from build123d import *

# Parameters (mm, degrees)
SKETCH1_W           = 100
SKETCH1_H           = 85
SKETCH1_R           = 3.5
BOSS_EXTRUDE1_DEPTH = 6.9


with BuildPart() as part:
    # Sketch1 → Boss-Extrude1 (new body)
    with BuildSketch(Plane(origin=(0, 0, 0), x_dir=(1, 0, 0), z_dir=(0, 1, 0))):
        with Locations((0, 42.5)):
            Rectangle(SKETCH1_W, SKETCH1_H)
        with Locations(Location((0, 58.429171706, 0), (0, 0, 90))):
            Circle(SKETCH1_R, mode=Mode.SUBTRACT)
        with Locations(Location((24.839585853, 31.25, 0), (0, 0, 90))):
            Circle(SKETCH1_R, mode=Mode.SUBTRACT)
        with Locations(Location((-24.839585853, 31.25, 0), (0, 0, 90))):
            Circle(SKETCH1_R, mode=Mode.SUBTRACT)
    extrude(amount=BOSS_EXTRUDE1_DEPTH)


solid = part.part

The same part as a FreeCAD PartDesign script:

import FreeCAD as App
import Part
import Sketcher
from FreeCAD import Vector


def add_polygon(sketch, points):
    """Adds a closed chain of lines whose ends are joined by coincident constraints."""
    first, n = sketch.GeometryCount, len(points)
    for a, b in zip(points, points[1:] + points[:1]):
        sketch.addGeometry(Part.LineSegment(App.Vector(*a, 0), App.Vector(*b, 0)), False)
    for i in range(n):
        sketch.addConstraint(Sketcher.Constraint("Coincident", first + i, 2, first + (i + 1) % n, 1))

doc = App.newDocument("Part")
body = doc.addObject("PartDesign::Body", "Body")

sketch1 = body.newObject("Sketcher::SketchObject", "Sketch")
sketch1.AttachmentSupport = (doc.getObject("XZ_Plane"), [""])
sketch1.MapMode = "FlatFace"
add_polygon(sketch1, [(-50, -85), (-50, 0), (50, 0), (50, -85)])
sketch1.addGeometry(Part.Circle(Vector(-24.839586, -31.25, 0), Vector(0, 0, 1), 3.5), False)
sketch1.addGeometry(Part.Circle(Vector(24.839586, -31.25, 0), Vector(0, 0, 1), 3.5), False)
sketch1.addGeometry(Part.Circle(Vector(0, -58.429172, 0), Vector(0, 0, 1), 3.5), False)
sketch1.addConstraint(Sketcher.Constraint("Vertical", 0))
sketch1.addConstraint(Sketcher.Constraint("Horizontal", 1))
sketch1.addConstraint(Sketcher.Constraint("Vertical", 2))
sketch1.addConstraint(Sketcher.Constraint("Horizontal", 3))
sketch1.addConstraint(Sketcher.Constraint("Equal", 4, 5))
sketch1.addConstraint(Sketcher.Constraint("Equal", 5, 6))
sketch1.addConstraint(Sketcher.Constraint("Symmetric", 0, 2, 1, 2, -1, 1))
sketch1.addConstraint(Sketcher.Constraint("Symmetric", 4, 3, 5, 3, -2))
sketch1.addConstraint(Sketcher.Constraint("PointOnObject", 6, 3, -2))
sketch1.addConstraint(Sketcher.Constraint("Diameter", 4, 7.0))
sketch1.addConstraint(Sketcher.Constraint("DistanceX", 1, 1, 1, 2, 100.0))
sketch1.addConstraint(Sketcher.Constraint("DistanceY", 0, 1, 0, 2, 85.0))
sketch1.addConstraint(Sketcher.Constraint("DistanceY", 4, 3, -1, 1, 31.25))
sketch1.addConstraint(Sketcher.Constraint("DistanceY", 6, 3, -1, 1, 58.429172))
sketch1.addConstraint(Sketcher.Constraint("DistanceX", 4, 3, 5, 3, 49.679172))
pad1 = body.newObject("PartDesign::Pad", "Pad")
pad1.Profile = sketch1
pad1.Length = 6.9
pad1.Reversed = True

doc.recompute()
